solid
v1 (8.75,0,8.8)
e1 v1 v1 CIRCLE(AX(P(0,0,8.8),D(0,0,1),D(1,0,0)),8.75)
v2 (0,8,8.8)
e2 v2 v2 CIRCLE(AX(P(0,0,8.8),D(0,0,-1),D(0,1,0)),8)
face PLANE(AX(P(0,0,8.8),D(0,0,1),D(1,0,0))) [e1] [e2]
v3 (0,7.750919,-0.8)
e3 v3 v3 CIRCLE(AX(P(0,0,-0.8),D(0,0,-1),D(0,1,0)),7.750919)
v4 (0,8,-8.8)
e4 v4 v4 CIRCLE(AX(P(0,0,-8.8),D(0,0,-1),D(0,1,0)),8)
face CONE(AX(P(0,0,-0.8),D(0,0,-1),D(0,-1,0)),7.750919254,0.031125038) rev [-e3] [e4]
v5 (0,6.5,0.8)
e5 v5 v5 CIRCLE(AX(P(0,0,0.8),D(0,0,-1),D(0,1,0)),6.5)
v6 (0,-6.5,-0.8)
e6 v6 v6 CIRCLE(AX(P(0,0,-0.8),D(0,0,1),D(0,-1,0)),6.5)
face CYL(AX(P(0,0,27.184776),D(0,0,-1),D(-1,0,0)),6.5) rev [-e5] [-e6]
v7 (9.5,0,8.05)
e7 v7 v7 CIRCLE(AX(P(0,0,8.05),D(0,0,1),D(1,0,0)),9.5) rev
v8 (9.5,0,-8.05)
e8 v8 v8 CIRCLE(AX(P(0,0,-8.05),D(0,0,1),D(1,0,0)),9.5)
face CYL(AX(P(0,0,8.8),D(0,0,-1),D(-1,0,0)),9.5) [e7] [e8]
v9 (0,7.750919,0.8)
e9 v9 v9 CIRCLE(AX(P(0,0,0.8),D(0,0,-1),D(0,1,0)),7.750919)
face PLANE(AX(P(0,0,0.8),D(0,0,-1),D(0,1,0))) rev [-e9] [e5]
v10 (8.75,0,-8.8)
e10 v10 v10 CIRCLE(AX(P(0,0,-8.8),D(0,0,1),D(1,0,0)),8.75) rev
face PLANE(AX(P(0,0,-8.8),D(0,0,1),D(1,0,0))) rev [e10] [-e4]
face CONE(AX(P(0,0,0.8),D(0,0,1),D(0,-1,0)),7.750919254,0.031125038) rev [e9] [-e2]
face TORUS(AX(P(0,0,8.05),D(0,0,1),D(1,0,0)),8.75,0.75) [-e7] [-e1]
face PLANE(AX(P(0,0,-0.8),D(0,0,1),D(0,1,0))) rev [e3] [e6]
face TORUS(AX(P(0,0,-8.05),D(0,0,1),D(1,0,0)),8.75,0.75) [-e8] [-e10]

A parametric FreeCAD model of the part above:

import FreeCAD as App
import Part
import Sketcher

V = App.Vector
Q = App.Units.Quantity


def edges_at(feature, points):
    """Names of the edges that pass closest to the given points."""
    edges = feature.Shape.Edges
    near = lambda p: min(range(len(edges)), key=lambda i: edges[i].distToShape(Part.Vertex(*p))[0])
    return sorted({f"Edge{near(p) + 1}" for p in points})

doc = App.newDocument("Part")
body = doc.addObject("PartDesign::Body", "Body")

sketch1 = body.newObject("Sketcher::SketchObject", "Sketch")
sketch1.AttachmentSupport = (doc.getObject("XY_Plane"), [""])
sketch1.MapMode = "FlatFace"
sketch1.addGeometry(Part.Circle(V(0, 0, 0), V(0, 0, 1), 10), False)
sketch1.addConstraint([
    Sketcher.Constraint("Coincident", 0, 3, -1, 1),
    Sketcher.Constraint("Diameter", 0, Q("19 mm")),
])
pad1 = body.newObject("PartDesign::Pad", "Pad")
pad1.Profile = sketch1
pad1.Length = 17.6
pad1.Midplane = True

sketch2 = body.newObject("Sketcher::SketchObject", "Sketch001")
sketch2.AttachmentSupport = (doc.getObject("XY_Plane"), [""])
sketch2.MapMode = "FlatFace"
sketch2.AttachmentOffset = App.Placement(V(0, 0, -8.8), App.Rotation())
sketch2.addGeometry(Part.Circle(V(0, 0, 0), V(0, 0, 1), 6), False)
sketch2.addConstraint([
    Sketcher.Constraint("Coincident", 0, 3, -1, 1),
    Sketcher.Constraint("Diameter", 0, Q("13 mm")),
])
pocket1 = body.newObject("PartDesign::Pocket", "Pocket")
pocket1.Profile = sketch2
pocket1.Length = 17.6
pocket1.Reversed = True

sketch3 = body.newObject("Sketcher::SketchObject", "Sketch002")
sketch3.AttachmentSupport = (doc.getObject("YZ_Plane"), [""])
sketch3.MapMode = "FlatFace"
sketch3.addGeometry([
    Part.LineSegment(V(0, 1, 0), V(8, 1, 0)),
    Part.LineSegment(V(8, 1, 0), V(8, 9, 0)),
    Part.LineSegment(V(8, 9, 0), V(0, 9, 0)),
    Part.LineSegment(V(0, 9, 0), V(0, 1, 0)),
], False)
sketch3.addConstraint([
    Sketcher.Constraint("Coincident", 0, 2, 1, 1),
    Sketcher.Constraint("Coincident", 1, 2, 2, 1),
    Sketcher.Constraint("Coincident", 2, 2, 3, 1),
    Sketcher.Constraint("Coincident", 3, 2, 0, 1),
    Sketcher.Constraint("Horizontal", 0),
    Sketcher.Constraint("Horizontal", 2),
    Sketcher.Constraint("Vertical", 3),
    Sketcher.Constraint("PointOnObject", 2, 2, -2),
    Sketcher.Constraint("Equal", 2, 3),
    Sketcher.Constraint("DistanceX", 2, 2, 2, 1, Q("8 mm")),
    Sketcher.Constraint("DistanceY", -1, 1, 0, 2, Q("0.8 mm")),
    Sketcher.Constraint("DistanceX", 0, 1, 0, 2, Q("7.750919 mm")),
])
groove = body.newObject("PartDesign::Groove", "Groove")
groove.Profile = sketch3
groove.ReferenceAxis = (sketch3, ["V_Axis"])
groove.Angle = 360
doc.recompute()

fillet = body.newObject("PartDesign::Fillet", "Fillet")
fillet.Base = (groove, edges_at(groove, [(-9.5, 0, -8.8), (-9.5, 0, 8.8)]))
fillet.Radius = 0.75
doc.recompute()

mirrored = body.newObject("PartDesign::Mirrored", "Mirrored")
mirrored.Originals = [groove]
mirrored.MirrorPlane = (doc.getObject("XY_Plane"), [""])
body.Tip = mirrored

doc.recompute()
